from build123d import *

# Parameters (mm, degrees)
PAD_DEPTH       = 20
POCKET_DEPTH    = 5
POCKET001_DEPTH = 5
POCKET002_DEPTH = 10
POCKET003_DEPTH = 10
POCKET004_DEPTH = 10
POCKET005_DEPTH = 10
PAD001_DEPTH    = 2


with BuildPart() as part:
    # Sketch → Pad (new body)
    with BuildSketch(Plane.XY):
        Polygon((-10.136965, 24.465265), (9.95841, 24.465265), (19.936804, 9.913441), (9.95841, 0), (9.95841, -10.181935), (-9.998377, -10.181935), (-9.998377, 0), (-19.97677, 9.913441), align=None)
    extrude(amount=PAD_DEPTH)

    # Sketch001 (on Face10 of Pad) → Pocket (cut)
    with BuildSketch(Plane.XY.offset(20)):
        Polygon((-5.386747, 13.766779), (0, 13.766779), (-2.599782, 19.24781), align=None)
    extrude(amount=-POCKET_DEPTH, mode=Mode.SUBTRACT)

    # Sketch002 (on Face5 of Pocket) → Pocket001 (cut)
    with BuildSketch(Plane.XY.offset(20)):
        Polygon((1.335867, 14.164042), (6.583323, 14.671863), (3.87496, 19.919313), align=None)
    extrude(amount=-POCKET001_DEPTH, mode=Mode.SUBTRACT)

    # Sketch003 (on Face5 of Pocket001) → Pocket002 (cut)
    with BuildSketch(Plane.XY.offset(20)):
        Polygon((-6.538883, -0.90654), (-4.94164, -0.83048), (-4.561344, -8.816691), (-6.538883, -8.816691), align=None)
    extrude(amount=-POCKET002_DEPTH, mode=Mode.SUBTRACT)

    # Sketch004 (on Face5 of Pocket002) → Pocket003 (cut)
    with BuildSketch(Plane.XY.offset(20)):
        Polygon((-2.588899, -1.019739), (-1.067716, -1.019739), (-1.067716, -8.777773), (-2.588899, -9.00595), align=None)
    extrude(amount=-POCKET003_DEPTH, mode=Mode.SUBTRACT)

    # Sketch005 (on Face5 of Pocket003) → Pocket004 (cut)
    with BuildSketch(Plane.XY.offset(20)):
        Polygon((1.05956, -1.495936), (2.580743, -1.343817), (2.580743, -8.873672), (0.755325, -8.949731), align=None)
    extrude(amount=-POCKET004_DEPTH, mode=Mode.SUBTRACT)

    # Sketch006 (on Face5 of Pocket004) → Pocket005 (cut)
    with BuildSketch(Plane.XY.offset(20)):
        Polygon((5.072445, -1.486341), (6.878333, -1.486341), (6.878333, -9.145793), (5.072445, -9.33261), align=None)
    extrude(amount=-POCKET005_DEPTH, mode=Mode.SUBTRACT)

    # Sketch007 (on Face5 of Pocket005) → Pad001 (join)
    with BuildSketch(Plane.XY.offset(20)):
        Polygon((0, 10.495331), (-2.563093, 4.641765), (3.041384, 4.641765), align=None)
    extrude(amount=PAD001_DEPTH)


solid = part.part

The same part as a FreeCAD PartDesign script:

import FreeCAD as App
import Part
import Sketcher

V = App.Vector
Q = App.Units.Quantity


def add_polygon(sketch, points):
    """Adds a closed chain of lines whose ends are joined by coincident constraints."""
    first, n = sketch.GeometryCount, len(points)
    for a, b in zip(points, points[1:] + points[:1]):
        sketch.addGeometry(Part.LineSegment(App.Vector(*a, 0), App.Vector(*b, 0)), False)
    for i in range(n):
        sketch.addConstraint(Sketcher.Constraint("Coincident", first + i, 2, first + (i + 1) % n, 1))

doc = App.newDocument("Part")
body = doc.addObject("PartDesign::Body", "Body")

# Sketch on XY plane
sketch1 = body.newObject("Sketcher::SketchObject", "Sketch")
sketch1.AttachmentSupport = (doc.getObject("XY_Plane"), [""])
sketch1.MapMode = "FlatFace"
add_polygon(sketch1, [(10, 24), (-10, 24), (-20, 10), (-10, 0), (-10, -10), (10, -10), (10, 0), (20, 10)])  # lines 0-7
sketch1.addConstraint([
    Sketcher.Constraint("Horizontal", 0),
    Sketcher.Constraint("Vertical", 3),
    Sketcher.Constraint("Horizontal", 4),
    Sketcher.Constraint("Vertical", 5),
    Sketcher.Constraint("PointOnObject", 2, 2, -1),
    Sketcher.Constraint("PointOnObject", 5, 2, -1),
    Sketcher.Constraint("Horizontal", 1, 2, 6, 2),
    Sketcher.Constraint("Vertical", 5, 2, 7, 2),
    Sketcher.Constraint("Equal", 2, 6),
    Sketcher.Constraint("DistanceY", 3, 2, 0, 2, Q("34.6472 mm")),
    Sketcher.Constraint("Distance", 1, Q("17.56637 mm")),
    Sketcher.Constraint("DistanceX", 0, 2, 0, 1, Q("20.095375 mm")),
    Sketcher.Constraint("DistanceX", 4, 1, 4, 2, Q("19.956787 mm")),
    Sketcher.Constraint("DistanceY", 3, 2, 3, 1, Q("10.181935 mm")),
    Sketcher.Constraint("DistanceX", 1, 2, -1, 1, Q("19.97677 mm")),
    Sketcher.Constraint("DistanceY", -1, 1, 1, 2, Q("9.913441 mm")),
])
pad1 = body.newObject("PartDesign::Pad", "Pad")
pad1.Profile = sketch1
pad1.Length = 20

# Sketch on XY plane
sketch2 = body.newObject("Sketcher::SketchObject", "Sketch001")
sketch2.AttachmentSupport = (doc.getObject("XY_Plane"), [""])
sketch2.MapMode = "FlatFace"
sketch2.AttachmentOffset = App.Placement(V(0, 0, 20), App.Rotation())
add_polygon(sketch2, [(-5, 14), (0, 14), (-3, 19)])  # lines 0-2
sketch2.addConstraint([
    Sketcher.Constraint("Horizontal", 0),
    Sketcher.Constraint("PointOnObject", 0, 2, -2),
    Sketcher.Constraint("DistanceX", 0, 1, 0, 2, Q("5.386747 mm")),
    Sketcher.Constraint("DistanceY", -1, 1, 0, 2, Q("13.766779 mm")),
    Sketcher.Constraint("DistanceX", 1, 2, -1, 1, Q("2.599782 mm")),
    Sketcher.Constraint("DistanceY", -1, 1, 1, 2, Q("19.24781 mm")),
])
pocket1 = body.newObject("PartDesign::Pocket", "Pocket")
pocket1.Profile = sketch2
pocket1.Length = 5

# Sketch on XY plane
sketch3 = body.newObject("Sketcher::SketchObject", "Sketch002")
sketch3.AttachmentSupport = (doc.getObject("XY_Plane"), [""])
sketch3.MapMode = "FlatFace"
sketch3.AttachmentOffset = App.Placement(V(0, 0, 20), App.Rotation())
add_polygon(sketch3, [(1, 14), (7, 15), (4, 20)])  # lines 0-2
sketch3.addConstraint([
    Sketcher.Constraint("Distance", 0, Q("5.271971 mm")),
    Sketcher.Constraint("Distance", 2, Q("6.29048 mm")),
    Sketcher.Constraint("DistanceX", -1, 1, 1, 2, Q("3.87496 mm")),
    Sketcher.Constraint("DistanceY", 0, 2, 1, 2, Q("5.24745 mm")),
    Sketcher.Constraint("DistanceY", 2, 2, 0, 2, Q("0.507821 mm")),
    Sketcher.Constraint("DistanceY", -1, 1, 0, 2, Q("14.671863 mm")),
])
pocket2 = body.newObject("PartDesign::Pocket", "Pocket001")
pocket2.Profile = sketch3
pocket2.Length = 5

# Sketch on XY plane
sketch4 = body.newObject("Sketcher::SketchObject", "Sketch003")
sketch4.AttachmentSupport = (doc.getObject("XY_Plane"), [""])
sketch4.MapMode = "FlatFace"
sketch4.AttachmentOffset = App.Placement(V(0, 0, 20), App.Rotation())
add_polygon(sketch4, [(-4.9, -0.8), (-6.5, -0.9), (-6.5, -8.8), (-4.6, -8.8)])  # lines 0-3
sketch4.addConstraint([
    Sketcher.Constraint("Vertical", 1),
    Sketcher.Constraint("Horizontal", 2),
    Sketcher.Constraint("Perpendicular", 0, 3),
    Sketcher.Constraint("DistanceX", 2, 1, 2, 2, Q("1.977539 mm")),
    Sketcher.Constraint("DistanceY", 1, 2, 1, 1, Q("7.910151 mm")),
    Sketcher.Constraint("Distance", 3, Q("7.995261 mm")),
    Sketcher.Constraint("DistanceY", 0, 2, -1, 1, Q("0.90654 mm")),
    Sketcher.Constraint("DistanceX", 3, 2, -1, 1, Q("4.94164 mm")),
])
pocket3 = body.newObject("PartDesign::Pocket", "Pocket002")
pocket3.Profile = sketch4
pocket3.Length = 10

# Sketch on XY plane
sketch5 = body.newObject("Sketcher::SketchObject", "Sketch004")
sketch5.AttachmentSupport = (doc.getObject("XY_Plane"), [""])
sketch5.MapMode = "FlatFace"
sketch5.AttachmentOffset = App.Placement(V(0, 0, 20), App.Rotation())
add_polygon(sketch5, [(-1.1, -1), (-2.6, -1), (-2.6, -9), (-1.1, -8.8)])  # lines 0-3
sketch5.addConstraint([
    Sketcher.Constraint("Horizontal", 0),
    Sketcher.Constraint("Vertical", 1),
    Sketcher.Constraint("Vertical", 3),
    Sketcher.Constraint("Distance", 2, Q("1.538201 mm")),
    Sketcher.Constraint("DistanceY", 1, 2, 1, 1, Q("7.986211 mm")),
    Sketcher.Constraint("DistanceX", 0, 2, -1, 1, Q("2.588899 mm")),
    Sketcher.Constraint("DistanceX", 0, 2, 0, 1, Q("1.521183 mm")),
    Sketcher.Constraint("DistanceY", 0, 2, -1, 1, Q("1.019739 mm")),
])
pocket4 = body.newObject("PartDesign::Pocket", "Pocket003")
pocket4.Profile = sketch5
pocket4.Length = 10

# Sketch on XY plane
sketch6 = body.newObject("Sketcher::SketchObject", "Sketch005")
sketch6.AttachmentSupport = (doc.getObject("XY_Plane"), [""])
sketch6.MapMode = "FlatFace"
sketch6.AttachmentOffset = App.Placement(V(0, 0, 20), App.Rotation())
add_polygon(sketch6, [(2.6, -1.3), (1.1, -1.5), (0.8, -8.9), (2.6, -8.9)])  # lines 0-3
sketch6.addConstraint([
    Sketcher.Constraint("Vertical", 3),
    Sketcher.Constraint("Distance", 1, Q("7.460001 mm")),
    Sketcher.Constraint("Distance", 2, Q("1.827002 mm")),
    Sketcher.Constraint("Distance", 0, Q("1.52877 mm")),
    Sketcher.Constraint("DistanceY", 3, 1, 3, 2, Q("7.529855 mm")),
    Sketcher.Constraint("DistanceX", -1, 1, 0, 2, Q("1.05956 mm")),
    Sketcher.Constraint("DistanceY", 1, 2, -1, 1, Q("8.949731 mm")),
    Sketcher.Constraint("DistanceY", 2, 2, -1, 1, Q("8.873672 mm")),
])
pocket5 = body.newObject("PartDesign::Pocket", "Pocket004")
pocket5.Profile = sketch6
pocket5.Length = 10

# Sketch on XY plane
sketch7 = body.newObject("Sketcher::SketchObject", "Sketch006")
sketch7.AttachmentSupport = (doc.getObject("XY_Plane"), [""])
sketch7.MapMode = "FlatFace"
sketch7.AttachmentOffset = App.Placement(V(0, 0, 20), App.Rotation())
add_polygon(sketch7, [(6.9, -1.5), (5.1, -1.5), (5.1, -9.3), (6.9, -9.1)])  # lines 0-3
sketch7.addConstraint([
    Sketcher.Constraint("Horizontal", 0),
    Sketcher.Constraint("Vertical", 1),
    Sketcher.Constraint("Vertical", 3),
    Sketcher.Constraint("DistanceY", 1, 2, 1, 1, Q("7.846269 mm")),
    Sketcher.Constraint("DistanceX", 0, 2, 0, 1, Q("1.805888 mm")),
    Sketcher.Constraint("DistanceY", 3, 1, 3, 2, Q("7.659452 mm")),
    Sketcher.Constraint("DistanceY", 0, 2, -1, 1, Q("1.486341 mm")),
    Sketcher.Constraint("DistanceX", -1, 1, 0, 2, Q("5.072445 mm")),
])
pocket6 = body.newObject("PartDesign::Pocket", "Pocket005")
pocket6.Profile = sketch7
pocket6.Length = 10

# Sketch on XY plane
sketch8 = body.newObject("Sketcher::SketchObject", "Sketch007")
sketch8.AttachmentSupport = (doc.getObject("XY_Plane"), [""])
sketch8.MapMode = "FlatFace"
sketch8.AttachmentOffset = App.Placement(V(0, 0, 20), App.Rotation())
add_polygon(sketch8, [(0, 10), (-3, 5), (3, 5)])  # lines 0-2
sketch8.addConstraint([
    Sketcher.Constraint("Horizontal", 1),
    Sketcher.Constraint("PointOnObject", 2, 2, -2),
    Sketcher.Constraint("DistanceX", 1, 1, 1, 2, Q("5.604477 mm")),
    Sketcher.Constraint("DistanceY", -1, 1, 2, 2, Q("10.495331 mm")),
    Sketcher.Constraint("Distance", 0, Q("6.390124 mm")),
    Sketcher.Constraint("Distance", 2, Q("6.596533 mm")),
])
pad2 = body.newObject("PartDesign::Pad", "Pad001")
pad2.Profile = sketch8
pad2.Length = 2

doc.recompute()
